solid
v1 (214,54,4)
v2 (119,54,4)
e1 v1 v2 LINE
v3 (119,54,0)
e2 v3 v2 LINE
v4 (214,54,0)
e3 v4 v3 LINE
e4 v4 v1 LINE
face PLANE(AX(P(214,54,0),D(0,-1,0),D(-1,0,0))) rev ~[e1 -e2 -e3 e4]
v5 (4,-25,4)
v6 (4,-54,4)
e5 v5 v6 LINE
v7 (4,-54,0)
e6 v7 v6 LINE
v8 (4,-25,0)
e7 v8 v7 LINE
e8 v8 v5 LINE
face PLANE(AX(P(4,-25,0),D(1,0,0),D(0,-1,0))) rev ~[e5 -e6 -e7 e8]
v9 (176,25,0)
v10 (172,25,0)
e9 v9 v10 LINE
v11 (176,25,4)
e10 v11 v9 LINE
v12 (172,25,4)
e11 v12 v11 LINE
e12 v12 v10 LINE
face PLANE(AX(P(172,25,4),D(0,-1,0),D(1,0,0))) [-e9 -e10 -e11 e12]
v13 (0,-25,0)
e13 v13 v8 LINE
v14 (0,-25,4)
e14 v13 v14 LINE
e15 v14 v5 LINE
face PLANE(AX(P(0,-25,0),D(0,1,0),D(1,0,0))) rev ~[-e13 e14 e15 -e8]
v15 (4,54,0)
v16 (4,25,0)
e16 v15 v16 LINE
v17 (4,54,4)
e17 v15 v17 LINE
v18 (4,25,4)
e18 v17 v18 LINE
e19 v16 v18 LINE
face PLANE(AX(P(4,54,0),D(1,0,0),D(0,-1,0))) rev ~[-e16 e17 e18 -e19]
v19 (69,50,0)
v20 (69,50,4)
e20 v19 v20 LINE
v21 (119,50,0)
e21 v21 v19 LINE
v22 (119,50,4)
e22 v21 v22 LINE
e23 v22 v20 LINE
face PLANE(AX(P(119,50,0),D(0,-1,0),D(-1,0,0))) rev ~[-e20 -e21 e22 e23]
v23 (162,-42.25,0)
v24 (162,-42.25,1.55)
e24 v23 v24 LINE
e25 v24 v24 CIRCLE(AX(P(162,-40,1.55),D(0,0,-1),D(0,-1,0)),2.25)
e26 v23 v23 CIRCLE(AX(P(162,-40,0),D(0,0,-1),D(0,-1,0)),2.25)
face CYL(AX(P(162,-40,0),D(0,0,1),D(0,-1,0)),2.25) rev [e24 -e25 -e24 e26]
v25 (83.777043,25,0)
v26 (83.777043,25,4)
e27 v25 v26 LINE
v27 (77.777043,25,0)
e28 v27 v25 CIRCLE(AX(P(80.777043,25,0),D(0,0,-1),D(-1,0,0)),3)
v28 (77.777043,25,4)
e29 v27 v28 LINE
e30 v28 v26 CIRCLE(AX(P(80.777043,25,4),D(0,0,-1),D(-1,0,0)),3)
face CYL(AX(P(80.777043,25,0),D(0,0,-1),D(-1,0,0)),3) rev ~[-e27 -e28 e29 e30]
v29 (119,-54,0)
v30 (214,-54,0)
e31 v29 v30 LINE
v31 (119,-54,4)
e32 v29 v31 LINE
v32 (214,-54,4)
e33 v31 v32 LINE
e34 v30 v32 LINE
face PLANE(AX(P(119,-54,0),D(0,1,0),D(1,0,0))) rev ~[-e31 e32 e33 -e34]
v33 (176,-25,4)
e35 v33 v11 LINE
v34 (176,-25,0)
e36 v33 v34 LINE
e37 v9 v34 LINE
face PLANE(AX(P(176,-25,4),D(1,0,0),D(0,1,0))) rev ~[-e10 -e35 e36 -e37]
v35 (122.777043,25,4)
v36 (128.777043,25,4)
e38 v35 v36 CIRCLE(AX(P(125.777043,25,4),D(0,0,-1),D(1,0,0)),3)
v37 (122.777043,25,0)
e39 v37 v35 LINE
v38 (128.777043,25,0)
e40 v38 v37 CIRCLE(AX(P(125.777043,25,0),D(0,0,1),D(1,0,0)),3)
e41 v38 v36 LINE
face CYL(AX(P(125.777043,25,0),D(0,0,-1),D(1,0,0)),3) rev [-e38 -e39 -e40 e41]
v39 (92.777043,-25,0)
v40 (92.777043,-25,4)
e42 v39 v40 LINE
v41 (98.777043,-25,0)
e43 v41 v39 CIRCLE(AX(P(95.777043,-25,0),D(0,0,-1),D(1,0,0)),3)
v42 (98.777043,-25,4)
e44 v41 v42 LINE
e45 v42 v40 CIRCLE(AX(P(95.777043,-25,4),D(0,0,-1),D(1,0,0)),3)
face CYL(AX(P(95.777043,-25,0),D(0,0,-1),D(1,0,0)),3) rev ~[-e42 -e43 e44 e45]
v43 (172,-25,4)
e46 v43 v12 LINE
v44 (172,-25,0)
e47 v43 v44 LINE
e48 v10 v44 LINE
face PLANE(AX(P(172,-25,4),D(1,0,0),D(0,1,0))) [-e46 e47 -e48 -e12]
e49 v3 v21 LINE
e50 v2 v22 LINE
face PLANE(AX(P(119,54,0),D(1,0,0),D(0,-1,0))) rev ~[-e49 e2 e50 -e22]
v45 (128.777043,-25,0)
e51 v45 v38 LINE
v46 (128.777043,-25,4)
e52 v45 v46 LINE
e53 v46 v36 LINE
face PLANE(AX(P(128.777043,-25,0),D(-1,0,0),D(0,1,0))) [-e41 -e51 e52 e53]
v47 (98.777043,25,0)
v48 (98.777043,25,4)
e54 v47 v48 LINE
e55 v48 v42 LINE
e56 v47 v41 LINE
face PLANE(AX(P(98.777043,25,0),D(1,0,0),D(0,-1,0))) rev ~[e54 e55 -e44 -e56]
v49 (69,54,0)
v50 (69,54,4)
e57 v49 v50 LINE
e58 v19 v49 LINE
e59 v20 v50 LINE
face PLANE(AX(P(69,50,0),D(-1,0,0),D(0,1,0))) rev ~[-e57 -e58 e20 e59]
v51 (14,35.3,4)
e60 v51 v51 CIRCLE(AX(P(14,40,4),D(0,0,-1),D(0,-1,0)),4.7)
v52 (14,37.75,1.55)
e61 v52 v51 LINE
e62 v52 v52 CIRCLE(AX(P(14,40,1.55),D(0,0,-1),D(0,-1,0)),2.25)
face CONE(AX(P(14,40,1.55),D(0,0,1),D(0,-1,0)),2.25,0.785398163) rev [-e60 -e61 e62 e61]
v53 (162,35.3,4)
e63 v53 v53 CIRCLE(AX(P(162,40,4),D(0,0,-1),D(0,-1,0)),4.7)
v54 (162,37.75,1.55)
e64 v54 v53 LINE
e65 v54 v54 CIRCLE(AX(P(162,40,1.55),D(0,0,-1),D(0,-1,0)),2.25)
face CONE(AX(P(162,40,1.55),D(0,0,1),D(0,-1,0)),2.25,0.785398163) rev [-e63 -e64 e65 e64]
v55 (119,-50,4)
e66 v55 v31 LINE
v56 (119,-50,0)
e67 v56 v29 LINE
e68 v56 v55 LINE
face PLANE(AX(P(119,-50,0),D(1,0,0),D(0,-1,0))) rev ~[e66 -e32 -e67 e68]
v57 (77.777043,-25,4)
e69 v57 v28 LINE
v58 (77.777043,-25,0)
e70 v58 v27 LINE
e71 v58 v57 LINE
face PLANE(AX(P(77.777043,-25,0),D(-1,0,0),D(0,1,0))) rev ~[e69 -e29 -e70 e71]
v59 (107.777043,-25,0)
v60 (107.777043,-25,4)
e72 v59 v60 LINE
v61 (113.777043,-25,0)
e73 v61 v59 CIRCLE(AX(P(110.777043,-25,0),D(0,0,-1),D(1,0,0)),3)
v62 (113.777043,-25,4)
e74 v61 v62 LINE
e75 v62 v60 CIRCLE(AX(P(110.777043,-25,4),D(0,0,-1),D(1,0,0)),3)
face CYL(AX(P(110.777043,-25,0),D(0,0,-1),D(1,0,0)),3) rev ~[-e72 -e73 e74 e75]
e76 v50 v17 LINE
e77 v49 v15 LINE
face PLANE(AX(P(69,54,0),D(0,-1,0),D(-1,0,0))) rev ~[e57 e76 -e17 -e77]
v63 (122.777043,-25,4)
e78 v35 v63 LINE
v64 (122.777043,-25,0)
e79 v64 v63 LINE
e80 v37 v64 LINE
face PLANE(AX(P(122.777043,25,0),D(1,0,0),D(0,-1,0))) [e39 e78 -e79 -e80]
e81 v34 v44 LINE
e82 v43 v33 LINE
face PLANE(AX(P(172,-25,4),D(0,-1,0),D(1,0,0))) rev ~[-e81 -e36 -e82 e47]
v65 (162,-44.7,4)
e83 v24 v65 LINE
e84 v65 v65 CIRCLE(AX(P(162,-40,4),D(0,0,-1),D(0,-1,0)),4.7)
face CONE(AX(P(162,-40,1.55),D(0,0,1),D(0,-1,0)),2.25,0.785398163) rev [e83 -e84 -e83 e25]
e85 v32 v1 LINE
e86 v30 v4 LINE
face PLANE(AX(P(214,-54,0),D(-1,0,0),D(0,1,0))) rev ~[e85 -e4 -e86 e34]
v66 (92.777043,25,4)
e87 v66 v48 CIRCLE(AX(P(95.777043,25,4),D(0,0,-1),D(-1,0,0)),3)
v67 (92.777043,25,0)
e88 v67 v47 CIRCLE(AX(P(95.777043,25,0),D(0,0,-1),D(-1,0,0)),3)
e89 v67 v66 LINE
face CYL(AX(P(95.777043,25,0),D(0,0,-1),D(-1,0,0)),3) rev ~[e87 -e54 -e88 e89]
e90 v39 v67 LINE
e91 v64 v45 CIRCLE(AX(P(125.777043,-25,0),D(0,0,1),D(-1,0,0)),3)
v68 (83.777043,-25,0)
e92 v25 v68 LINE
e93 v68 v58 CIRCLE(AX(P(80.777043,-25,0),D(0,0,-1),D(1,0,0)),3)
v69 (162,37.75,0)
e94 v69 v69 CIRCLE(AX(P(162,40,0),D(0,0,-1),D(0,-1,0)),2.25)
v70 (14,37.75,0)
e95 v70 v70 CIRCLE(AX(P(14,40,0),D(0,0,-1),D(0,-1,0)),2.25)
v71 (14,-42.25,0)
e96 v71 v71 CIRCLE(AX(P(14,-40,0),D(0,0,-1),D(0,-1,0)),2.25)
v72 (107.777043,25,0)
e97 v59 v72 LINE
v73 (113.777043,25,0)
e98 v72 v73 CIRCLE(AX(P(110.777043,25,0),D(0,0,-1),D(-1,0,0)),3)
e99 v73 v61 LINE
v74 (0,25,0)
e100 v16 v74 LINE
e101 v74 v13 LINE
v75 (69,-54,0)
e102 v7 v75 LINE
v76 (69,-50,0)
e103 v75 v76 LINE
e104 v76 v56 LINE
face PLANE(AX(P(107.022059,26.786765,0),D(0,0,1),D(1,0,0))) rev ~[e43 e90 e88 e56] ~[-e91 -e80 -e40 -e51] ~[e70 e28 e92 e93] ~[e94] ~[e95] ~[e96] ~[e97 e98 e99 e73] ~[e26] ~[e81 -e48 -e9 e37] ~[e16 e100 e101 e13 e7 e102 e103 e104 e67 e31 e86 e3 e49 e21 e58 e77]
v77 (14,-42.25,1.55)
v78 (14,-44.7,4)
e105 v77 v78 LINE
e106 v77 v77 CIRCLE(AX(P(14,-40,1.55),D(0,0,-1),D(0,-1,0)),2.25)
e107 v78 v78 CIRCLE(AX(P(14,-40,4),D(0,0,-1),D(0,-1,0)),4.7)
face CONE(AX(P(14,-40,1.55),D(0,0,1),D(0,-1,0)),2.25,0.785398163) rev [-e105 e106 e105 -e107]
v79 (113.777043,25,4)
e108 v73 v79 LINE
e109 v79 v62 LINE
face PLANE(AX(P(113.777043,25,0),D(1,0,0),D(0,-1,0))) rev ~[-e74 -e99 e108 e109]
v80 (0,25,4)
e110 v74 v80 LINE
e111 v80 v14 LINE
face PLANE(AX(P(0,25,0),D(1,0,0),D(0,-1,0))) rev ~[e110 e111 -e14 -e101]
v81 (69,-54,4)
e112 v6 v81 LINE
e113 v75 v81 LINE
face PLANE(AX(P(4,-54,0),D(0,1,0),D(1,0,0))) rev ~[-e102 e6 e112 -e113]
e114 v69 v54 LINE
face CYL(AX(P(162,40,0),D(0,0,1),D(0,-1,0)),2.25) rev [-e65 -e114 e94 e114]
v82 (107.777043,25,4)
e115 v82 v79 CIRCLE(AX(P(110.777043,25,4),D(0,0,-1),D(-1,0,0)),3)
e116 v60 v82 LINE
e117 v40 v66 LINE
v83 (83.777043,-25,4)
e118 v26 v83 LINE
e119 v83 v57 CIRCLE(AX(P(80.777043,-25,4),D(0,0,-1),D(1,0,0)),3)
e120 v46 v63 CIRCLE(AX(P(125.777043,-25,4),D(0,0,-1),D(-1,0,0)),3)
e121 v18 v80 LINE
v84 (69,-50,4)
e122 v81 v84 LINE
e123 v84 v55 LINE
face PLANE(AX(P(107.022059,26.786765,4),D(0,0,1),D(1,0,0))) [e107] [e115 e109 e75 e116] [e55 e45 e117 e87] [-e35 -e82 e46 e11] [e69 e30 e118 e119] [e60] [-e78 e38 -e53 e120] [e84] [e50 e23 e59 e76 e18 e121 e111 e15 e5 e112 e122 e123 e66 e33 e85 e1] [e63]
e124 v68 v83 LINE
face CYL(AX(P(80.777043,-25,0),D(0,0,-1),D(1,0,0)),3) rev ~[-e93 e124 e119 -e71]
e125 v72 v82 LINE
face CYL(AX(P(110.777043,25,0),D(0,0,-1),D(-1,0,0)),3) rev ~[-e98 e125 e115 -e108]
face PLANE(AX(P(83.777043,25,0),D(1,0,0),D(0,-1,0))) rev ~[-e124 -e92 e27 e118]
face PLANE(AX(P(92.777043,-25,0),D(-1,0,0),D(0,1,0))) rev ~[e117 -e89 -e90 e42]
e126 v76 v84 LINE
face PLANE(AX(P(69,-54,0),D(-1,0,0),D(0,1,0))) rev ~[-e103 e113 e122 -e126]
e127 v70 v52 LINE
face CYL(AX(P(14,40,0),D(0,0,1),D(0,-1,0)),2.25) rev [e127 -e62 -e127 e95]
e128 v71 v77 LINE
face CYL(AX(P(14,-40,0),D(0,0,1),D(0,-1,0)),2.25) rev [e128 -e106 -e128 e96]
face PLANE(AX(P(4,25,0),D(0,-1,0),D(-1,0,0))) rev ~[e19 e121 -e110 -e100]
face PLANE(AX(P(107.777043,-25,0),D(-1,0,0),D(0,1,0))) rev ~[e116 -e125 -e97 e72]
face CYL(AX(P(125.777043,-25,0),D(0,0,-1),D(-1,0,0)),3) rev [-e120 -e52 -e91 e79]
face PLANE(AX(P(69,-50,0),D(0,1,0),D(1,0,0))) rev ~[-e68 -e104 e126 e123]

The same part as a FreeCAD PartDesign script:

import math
import FreeCAD as App
import Part
import Sketcher
from FreeCAD import Vector
Q = App.Units.Quantity


def add_polygon(sketch, points):
    """Adds a closed chain of lines whose ends are joined by coincident constraints."""
    first, n = sketch.GeometryCount, len(points)
    for a, b in zip(points, points[1:] + points[:1]):
        sketch.addGeometry(Part.LineSegment(App.Vector(*a, 0), App.Vector(*b, 0)), False)
    for i in range(n):
        sketch.addConstraint(Sketcher.Constraint("Coincident", first + i, 2, first + (i + 1) % n, 1))

doc = App.newDocument("Part")
body = doc.addObject("PartDesign::Body", "Body")

# Sketch on XY plane
sketch1 = body.newObject("Sketcher::SketchObject", "Sketch")
sketch1.AttachmentSupport = (doc.getObject("XY_Plane"), [""])
sketch1.MapMode = "FlatFace"
add_polygon(sketch1, [(0, 25), (0, -25), (4, -25), (4, -54), (69, -54), (69, -50), (119, -50), (119, -54), (214, -54), (214, 54), (119, 54), (119, 50), (69, 50), (69, 54), (4, 54), (4, 25)])  # lines 0-15
sketch1.addConstraint([
    Sketcher.Constraint("Vertical", 0),
    Sketcher.Constraint("Horizontal", 1),
    Sketcher.Constraint("Vertical", 2),
    Sketcher.Constraint("Horizontal", 3),
    Sketcher.Constraint("Vertical", 4),
    Sketcher.Constraint("Horizontal", 5),
    Sketcher.Constraint("Vertical", 6),
    Sketcher.Constraint("Horizontal", 7),
    Sketcher.Constraint("Vertical", 8),
    Sketcher.Constraint("Horizontal", 9),
    Sketcher.Constraint("Vertical", 10),
    Sketcher.Constraint("Horizontal", 11),
    Sketcher.Constraint("Vertical", 12),
    Sketcher.Constraint("Horizontal", 13),
    Sketcher.Constraint("Vertical", 14),
    Sketcher.Constraint("Horizontal", 15),
    Sketcher.Constraint("Symmetric", 0, 2, 15, 2, -1, 1),
    Sketcher.Constraint("Symmetric", 6, 2, 9, 2, -1),
    Sketcher.Constraint("Symmetric", 4, 2, 11, 2, -1),
    Sketcher.Constraint("Symmetric", 2, 2, 13, 2, -1),
    Sketcher.Constraint("Horizontal", 3, 2, 6, 2),
    Sketcher.Constraint("Equal", 11, 0),
    Sketcher.Constraint("Equal", 15, 4),
    Sketcher.Constraint("DistanceX", 1, 1, 1, 2, Q("4 mm")),
    Sketcher.Constraint("DistanceX", 3, 1, 3, 2, Q("65 mm")),
    Sketcher.Constraint("DistanceX", 5, 1, 5, 2, Q("50 mm")),
    Sketcher.Constraint("DistanceX", 7, 1, 7, 2, Q("95 mm")),
    Sketcher.Constraint("DistanceY", 2, 2, 2, 1, Q("29 mm")),
])
pad1 = body.newObject("PartDesign::Pad", "Pad")
pad1.Profile = sketch1
pad1.Length = 4

# Sketch on XY plane
sketch2 = body.newObject("Sketcher::SketchObject", "Sketch001")
sketch2.AttachmentSupport = (doc.getObject("XY_Plane"), [""])
sketch2.MapMode = "FlatFace"
sketch2.AttachmentOffset = App.Placement(Vector(0, 0, 4), App.Rotation())
add_polygon(sketch2, [(172, 25), (172, -25), (176, -25), (176, 25)])  # lines 0-3
sketch2.addConstraint([
    Sketcher.Constraint("Vertical", 0),
    Sketcher.Constraint("Horizontal", 1),
    Sketcher.Constraint("Vertical", 2),
    Sketcher.Constraint("Horizontal", 3),
    Sketcher.Constraint("DistanceX", 1, 1, 1, 2, Q("4 mm")),
    Sketcher.Constraint("DistanceY", 0, 2, 0, 1, Q("50 mm")),
    Sketcher.Constraint("DistanceX", -1, 1, 0, 2, Q("172 mm")),
    Sketcher.Constraint("DistanceY", 0, 2, -1, 1, Q("25 mm")),
])
pocket1 = body.newObject("PartDesign::Pocket", "Pocket")
pocket1.Profile = sketch2
pocket1.Type = "UpToFirst"

# Sketch on YZ plane
sketch3 = body.newObject("Sketcher::SketchObject", "Sketch002")
sketch3.AttachmentSupport = (doc.getObject("YZ_Plane"), [""])
sketch3.MapMode = "FlatFace"
sketch3.AttachmentOffset = App.Placement(Vector(0, 0, 14), App.Rotation())
add_polygon(sketch3, [(40, 0), (40, 4), (35.3, 4), (37.8, 1.6), (37.8, 0)])  # lines 0-4
sketch3.addGeometry(Part.LineSegment(Vector(40, 4, 0), Vector(40, 0, 0)), True)  # axis
sketch3.addConstraint([
    Sketcher.Constraint("Vertical", 0),
    Sketcher.Constraint("Horizontal", 1),
    Sketcher.Constraint("Vertical", 3),
    Sketcher.Constraint("Horizontal", 4),
    Sketcher.Constraint("Vertical", 5),
    Sketcher.Constraint("Coincident", 5, 1, 0, 2),
    Sketcher.Constraint("PointOnObject", 3, 2, -1),
    Sketcher.Constraint("PointOnObject", 5, 2, -1),
    Sketcher.Constraint("DistanceY", 0, 1, 0, 2, Q("4 mm")),
    Sketcher.Constraint("Angle", 2, Q("-45 deg")),
    Sketcher.Constraint("DistanceX", 1, 2, 1, 1, Q("4.7 mm")),
    Sketcher.Constraint("DistanceX", -1, 1, 0, 2, Q("40 mm")),
    Sketcher.Constraint("DistanceX", 4, 1, 4, 2, Q("2.25 mm")),
])
groove = body.newObject("PartDesign::Groove", "Groove")
groove.Profile = sketch3
groove.ReferenceAxis = (sketch3, ["Axis0"])
groove.Angle = 360
doc.recompute()

linearpattern = body.newObject("PartDesign::LinearPattern", "LinearPattern")
linearpattern.Originals = [groove]
linearpattern.Direction = (doc.getObject("X_Axis"), [""])
linearpattern.Mode = "offset"
linearpattern.Offset = 148
linearpattern.Occurrences = 2
body.Tip = linearpattern
doc.recompute()

datumline = body.newObject("PartDesign::Line", "DatumLine")
datumline.Placement = App.Placement(Vector(0, 0, 0), App.Rotation(Vector(0, 0, 1), Vector(0.879706514, -0.475517034, 0)))
linearpattern2 = body.newObject("PartDesign::LinearPattern", "LinearPattern001")
linearpattern2.Originals = [groove]
linearpattern2.Direction = (datumline, [""])
linearpattern2.Mode = "offset"
linearpattern2.Offset = 168.237927
linearpattern2.Occurrences = 2
body.Tip = linearpattern2
doc.recompute()

linearpattern3 = body.newObject("PartDesign::LinearPattern", "LinearPattern002")
linearpattern3.Originals = [groove]
linearpattern3.Direction = (doc.getObject("Y_Axis"), [""])
linearpattern3.Mode = "offset"
linearpattern3.Offset = 80
linearpattern3.Occurrences = 2
linearpattern3.Reversed = True
body.Tip = linearpattern3

# Sketch on XY plane
sketch4 = body.newObject("Sketcher::SketchObject", "Sketch003")
sketch4.AttachmentSupport = (doc.getObject("XY_Plane"), [""])
sketch4.MapMode = "FlatFace"
sketch4.addGeometry([
    Part.LineSegment(Vector(122.8, -25, 0), Vector(122.8, 25, 0)),
    Part.ArcOfCircle(Part.Circle(Vector(125.8, 25, 0), Vector(0, 0, 1), 3), math.radians(0), math.radians(180)),
    Part.LineSegment(Vector(128.8, 25, 0), Vector(128.8, -25, 0)),
    Part.ArcOfCircle(Part.Circle(Vector(125.8, -25, 0), Vector(0, 0, 1), 3), math.radians(180), math.radians(360)),
], False)
sketch4.addConstraint([
    Sketcher.Constraint("Tangent", 0, 2, 1, 2),
    Sketcher.Constraint("Tangent", 1, 1, 2, 1),
    Sketcher.Constraint("Tangent", 2, 2, 3, 2),
    Sketcher.Constraint("Tangent", 3, 1, 0, 1),
    Sketcher.Constraint("Vertical", 0),
    Sketcher.Constraint("Vertical", 2),
    Sketcher.Constraint("Radius", 1, Q("3 mm")),
    Sketcher.Constraint("DistanceY", 0, 1, 0, 2, Q("50 mm")),
    Sketcher.Constraint("DistanceY", -1, 1, 1, 3, Q("25 mm")),
    Sketcher.Constraint("DistanceX", -1, 1, 1, 3, Q("125.777043 mm")),
])
pocket2 = body.newObject("PartDesign::Pocket", "Pocket001")
pocket2.Profile = sketch4
pocket2.Type = "UpToFirst"
pocket2.Reversed = True

# Sketch on XY plane
sketch5 = body.newObject("Sketcher::SketchObject", "Sketch004")
sketch5.AttachmentSupport = (doc.getObject("XY_Plane"), [""])
sketch5.MapMode = "FlatFace"
sketch5.addGeometry([
    Part.LineSegment(Vector(113.8, 25, 0), Vector(113.8, -25, 0)),
    Part.ArcOfCircle(Part.Circle(Vector(110.8, -25, 0), Vector(0, 0, 1), 3), math.radians(180), math.radians(360)),
    Part.LineSegment(Vector(107.8, -25, 0), Vector(107.8, 25, 0)),
    Part.ArcOfCircle(Part.Circle(Vector(110.8, 25, 0), Vector(0, 0, 1), 3), math.radians(0), math.radians(180)),
], False)
sketch5.addConstraint([
    Sketcher.Constraint("Tangent", 0, 2, 1, 2),
    Sketcher.Constraint("Tangent", 1, 1, 2, 1),
    Sketcher.Constraint("Tangent", 2, 2, 3, 2),
    Sketcher.Constraint("Tangent", 3, 1, 0, 1),
    Sketcher.Constraint("Vertical", 0),
    Sketcher.Constraint("Vertical", 2),
    Sketcher.Constraint("Radius", 1, Q("3 mm")),
    Sketcher.Constraint("DistanceY", 0, 2, 0, 1, Q("50 mm")),
    Sketcher.Constraint("DistanceY", 1, 3, -1, 1, Q("25 mm")),
    Sketcher.Constraint("DistanceX", -1, 1, 1, 3, Q("110.777043 mm")),
])
pocket3 = body.newObject("PartDesign::Pocket", "Pocket002")
pocket3.Profile = sketch5
pocket3.Type = "UpToFirst"
pocket3.Reversed = True

# Sketch on XY plane
sketch6 = body.newObject("Sketcher::SketchObject", "Sketch005")
sketch6.AttachmentSupport = (doc.getObject("XY_Plane"), [""])
sketch6.MapMode = "FlatFace"
sketch6.addGeometry([
    Part.LineSegment(Vector(98.8, 25, 0), Vector(98.8, -25, 0)),
    Part.ArcOfCircle(Part.Circle(Vector(95.8, -25, 0), Vector(0, 0, 1), 3), math.radians(180), math.radians(360)),
    Part.LineSegment(Vector(92.8, -25, 0), Vector(92.8, 25, 0)),
    Part.ArcOfCircle(Part.Circle(Vector(95.8, 25, 0), Vector(0, 0, 1), 3), math.radians(0), math.radians(180)),
], False)
sketch6.addConstraint([
    Sketcher.Constraint("Tangent", 0, 2, 1, 2),
    Sketcher.Constraint("Tangent", 1, 1, 2, 1),
    Sketcher.Constraint("Tangent", 2, 2, 3, 2),
    Sketcher.Constraint("Tangent", 3, 1, 0, 1),
    Sketcher.Constraint("Vertical", 0),
    Sketcher.Constraint("Vertical", 2),
    Sketcher.Constraint("Radius", 1, Q("3 mm")),
    Sketcher.Constraint("DistanceY", 0, 2, 0, 1, Q("50 mm")),
    Sketcher.Constraint("DistanceY", 1, 3, -1, 1, Q("25 mm")),
    Sketcher.Constraint("DistanceX", -1, 1, 1, 3, Q("95.777043 mm")),
])
pocket4 = body.newObject("PartDesign::Pocket", "Pocket003")
pocket4.Profile = sketch6
pocket4.Type = "UpToFirst"
pocket4.Reversed = True

# Sketch on XY plane
sketch7 = body.newObject("Sketcher::SketchObject", "Sketch006")
sketch7.AttachmentSupport = (doc.getObject("XY_Plane"), [""])
sketch7.MapMode = "FlatFace"
sketch7.addGeometry([
    Part.LineSegment(Vector(83.8, 25, 0), Vector(83.8, -25, 0)),
    Part.ArcOfCircle(Part.Circle(Vector(80.8, -25, 0), Vector(0, 0, 1), 3), math.radians(180), math.radians(360)),
    Part.LineSegment(Vector(77.8, -25, 0), Vector(77.8, 25, 0)),
    Part.ArcOfCircle(Part.Circle(Vector(80.8, 25, 0), Vector(0, 0, 1), 3), math.radians(0), math.radians(180)),
], False)
sketch7.addConstraint([
    Sketcher.Constraint("Tangent", 0, 2, 1, 2),
    Sketcher.Constraint("Tangent", 1, 1, 2, 1),
    Sketcher.Constraint("Tangent", 2, 2, 3, 2),
    Sketcher.Constraint("Tangent", 3, 1, 0, 1),
    Sketcher.Constraint("Vertical", 0),
    Sketcher.Constraint("Vertical", 2),
    Sketcher.Constraint("Radius", 1, Q("3 mm")),
    Sketcher.Constraint("DistanceY", 0, 2, 0, 1, Q("50 mm")),
    Sketcher.Constraint("DistanceY", 1, 3, -1, 1, Q("25 mm")),
    Sketcher.Constraint("DistanceX", -1, 1, 1, 3, Q("80.777043 mm")),
])
pocket5 = body.newObject("PartDesign::Pocket", "Pocket004")
pocket5.Profile = sketch7
pocket5.Type = "UpToFirst"
pocket5.Reversed = True

doc.recompute()
